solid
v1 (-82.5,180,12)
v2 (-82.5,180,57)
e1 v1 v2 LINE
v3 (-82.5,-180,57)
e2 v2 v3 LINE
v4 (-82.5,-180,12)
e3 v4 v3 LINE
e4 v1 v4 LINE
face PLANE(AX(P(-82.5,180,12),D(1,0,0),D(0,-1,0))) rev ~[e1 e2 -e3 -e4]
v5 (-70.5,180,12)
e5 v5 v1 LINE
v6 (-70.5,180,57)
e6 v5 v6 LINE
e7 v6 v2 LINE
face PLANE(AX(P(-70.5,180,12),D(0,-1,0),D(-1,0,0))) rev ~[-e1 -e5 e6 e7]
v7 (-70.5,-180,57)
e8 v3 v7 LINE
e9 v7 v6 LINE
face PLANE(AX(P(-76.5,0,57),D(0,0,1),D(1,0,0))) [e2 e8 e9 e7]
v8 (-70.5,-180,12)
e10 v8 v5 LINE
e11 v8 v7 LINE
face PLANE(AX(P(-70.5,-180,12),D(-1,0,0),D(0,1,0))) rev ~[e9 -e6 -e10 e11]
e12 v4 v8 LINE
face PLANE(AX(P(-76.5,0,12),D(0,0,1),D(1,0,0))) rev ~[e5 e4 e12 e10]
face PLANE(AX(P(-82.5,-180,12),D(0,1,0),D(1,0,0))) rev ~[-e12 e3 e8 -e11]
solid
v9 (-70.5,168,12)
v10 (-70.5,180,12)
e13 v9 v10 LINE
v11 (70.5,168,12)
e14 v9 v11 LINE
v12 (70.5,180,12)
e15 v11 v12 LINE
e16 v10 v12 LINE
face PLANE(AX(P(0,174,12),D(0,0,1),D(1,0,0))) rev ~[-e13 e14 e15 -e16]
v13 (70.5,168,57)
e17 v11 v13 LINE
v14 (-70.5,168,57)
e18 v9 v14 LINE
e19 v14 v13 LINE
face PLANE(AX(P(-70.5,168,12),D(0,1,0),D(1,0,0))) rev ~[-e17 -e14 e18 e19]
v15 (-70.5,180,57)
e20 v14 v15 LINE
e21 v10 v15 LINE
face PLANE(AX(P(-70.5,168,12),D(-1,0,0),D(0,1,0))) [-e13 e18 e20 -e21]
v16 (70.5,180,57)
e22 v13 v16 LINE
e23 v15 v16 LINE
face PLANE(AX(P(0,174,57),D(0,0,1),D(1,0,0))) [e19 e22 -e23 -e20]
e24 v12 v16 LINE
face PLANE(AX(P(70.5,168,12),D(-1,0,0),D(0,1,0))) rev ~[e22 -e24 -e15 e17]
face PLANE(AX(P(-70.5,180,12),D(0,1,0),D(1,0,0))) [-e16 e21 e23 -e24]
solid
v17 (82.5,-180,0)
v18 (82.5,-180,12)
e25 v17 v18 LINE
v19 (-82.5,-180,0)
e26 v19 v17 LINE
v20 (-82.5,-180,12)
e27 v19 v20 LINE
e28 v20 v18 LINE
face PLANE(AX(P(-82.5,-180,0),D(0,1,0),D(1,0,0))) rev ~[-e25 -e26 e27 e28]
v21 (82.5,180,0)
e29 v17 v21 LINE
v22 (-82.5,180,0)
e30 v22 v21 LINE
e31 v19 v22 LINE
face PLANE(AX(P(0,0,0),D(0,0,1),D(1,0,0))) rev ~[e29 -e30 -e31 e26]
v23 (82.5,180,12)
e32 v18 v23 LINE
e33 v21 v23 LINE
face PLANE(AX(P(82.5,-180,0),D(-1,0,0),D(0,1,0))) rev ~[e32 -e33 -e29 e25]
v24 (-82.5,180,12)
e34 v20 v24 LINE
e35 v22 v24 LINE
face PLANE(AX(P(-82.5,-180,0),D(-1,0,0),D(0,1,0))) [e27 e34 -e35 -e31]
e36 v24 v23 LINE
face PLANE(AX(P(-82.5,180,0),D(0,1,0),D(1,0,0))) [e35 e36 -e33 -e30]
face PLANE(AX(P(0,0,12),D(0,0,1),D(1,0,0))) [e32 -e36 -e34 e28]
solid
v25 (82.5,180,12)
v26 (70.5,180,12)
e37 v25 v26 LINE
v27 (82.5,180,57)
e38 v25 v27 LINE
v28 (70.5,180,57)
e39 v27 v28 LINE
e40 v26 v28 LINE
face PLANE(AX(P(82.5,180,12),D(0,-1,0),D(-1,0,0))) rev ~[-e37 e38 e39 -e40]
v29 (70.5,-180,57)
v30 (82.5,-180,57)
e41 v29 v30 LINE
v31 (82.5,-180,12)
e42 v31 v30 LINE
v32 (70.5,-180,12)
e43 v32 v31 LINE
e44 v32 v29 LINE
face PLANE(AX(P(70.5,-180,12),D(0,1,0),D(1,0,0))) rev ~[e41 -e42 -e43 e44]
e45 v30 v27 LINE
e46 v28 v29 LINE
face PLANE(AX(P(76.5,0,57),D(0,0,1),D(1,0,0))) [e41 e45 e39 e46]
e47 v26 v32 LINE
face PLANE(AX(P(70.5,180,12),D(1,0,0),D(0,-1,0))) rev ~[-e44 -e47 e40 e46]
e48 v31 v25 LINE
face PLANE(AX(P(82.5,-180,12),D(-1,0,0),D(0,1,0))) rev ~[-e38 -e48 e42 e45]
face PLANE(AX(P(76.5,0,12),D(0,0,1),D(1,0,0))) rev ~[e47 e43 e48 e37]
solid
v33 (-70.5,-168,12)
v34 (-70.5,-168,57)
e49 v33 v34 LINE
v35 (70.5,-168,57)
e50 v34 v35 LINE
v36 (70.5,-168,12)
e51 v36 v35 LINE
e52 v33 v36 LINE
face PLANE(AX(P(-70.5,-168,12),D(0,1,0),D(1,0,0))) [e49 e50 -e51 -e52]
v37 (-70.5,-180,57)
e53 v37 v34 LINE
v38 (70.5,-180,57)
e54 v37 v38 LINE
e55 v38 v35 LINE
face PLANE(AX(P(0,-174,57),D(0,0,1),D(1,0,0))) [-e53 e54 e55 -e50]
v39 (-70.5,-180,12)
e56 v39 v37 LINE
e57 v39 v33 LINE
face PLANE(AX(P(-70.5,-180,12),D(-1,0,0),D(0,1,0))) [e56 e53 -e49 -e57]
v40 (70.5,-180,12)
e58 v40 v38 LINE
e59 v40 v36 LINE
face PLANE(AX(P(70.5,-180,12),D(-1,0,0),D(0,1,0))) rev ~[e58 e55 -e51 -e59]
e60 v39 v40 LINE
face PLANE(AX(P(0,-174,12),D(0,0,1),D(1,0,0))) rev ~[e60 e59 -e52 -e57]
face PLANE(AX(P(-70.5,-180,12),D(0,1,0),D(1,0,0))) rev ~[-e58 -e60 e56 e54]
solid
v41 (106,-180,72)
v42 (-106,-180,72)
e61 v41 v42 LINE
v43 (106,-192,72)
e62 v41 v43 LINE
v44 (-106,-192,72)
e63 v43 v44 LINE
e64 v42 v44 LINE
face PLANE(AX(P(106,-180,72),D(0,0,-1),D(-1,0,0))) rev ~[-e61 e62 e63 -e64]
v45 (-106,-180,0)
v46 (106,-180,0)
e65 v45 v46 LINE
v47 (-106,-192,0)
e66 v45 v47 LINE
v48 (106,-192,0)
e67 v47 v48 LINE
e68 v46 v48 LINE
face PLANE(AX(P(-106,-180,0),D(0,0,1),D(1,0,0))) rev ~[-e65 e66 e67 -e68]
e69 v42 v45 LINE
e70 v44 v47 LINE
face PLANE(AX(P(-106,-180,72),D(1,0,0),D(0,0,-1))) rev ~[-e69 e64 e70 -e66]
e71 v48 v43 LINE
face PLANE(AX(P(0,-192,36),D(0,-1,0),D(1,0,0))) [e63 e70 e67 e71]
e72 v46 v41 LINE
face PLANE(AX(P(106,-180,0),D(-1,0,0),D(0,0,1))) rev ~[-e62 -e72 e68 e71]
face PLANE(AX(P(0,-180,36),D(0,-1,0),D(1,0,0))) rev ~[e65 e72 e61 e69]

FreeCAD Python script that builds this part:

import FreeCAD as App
import Part
import Sketcher

V = App.Vector

doc = App.newDocument("Part")
body = doc.addObject("PartDesign::Body", "Body")

# Sketch on XY plane
sketch1 = body.newObject("Sketcher::SketchObject", "Sketch")
sketch1.AttachmentSupport = (doc.getObject("XY_Plane"), [""])
sketch1.MapMode = "FlatFace"
sketch1.addGeometry(Part.LineSegment(V(-82, 180, 0), V(-82, -180, 0)), False)
sketch1.addGeometry(Part.LineSegment(V(-82, -180, 0), V(82, -180, 0)), False)
sketch1.addGeometry(Part.LineSegment(V(82, -180, 0), V(82, 180, 0)), False)
sketch1.addGeometry(Part.LineSegment(V(82, 180, 0), V(-82, 180, 0)), False)
sketch1.addConstraint(Sketcher.Constraint("Coincident", 0, 2, 1, 1))
sketch1.addConstraint(Sketcher.Constraint("Coincident", 1, 2, 2, 1))
sketch1.addConstraint(Sketcher.Constraint("Coincident", 2, 2, 3, 1))
sketch1.addConstraint(Sketcher.Constraint("Coincident", 3, 2, 0, 1))
sketch1.addConstraint(Sketcher.Constraint("Vertical", 0))
sketch1.addConstraint(Sketcher.Constraint("Horizontal", 1))
sketch1.addConstraint(Sketcher.Constraint("Vertical", 2))
sketch1.addConstraint(Sketcher.Constraint("Horizontal", 3))
sketch1.addConstraint(Sketcher.Constraint("Symmetric", 0, 2, 2, 2, -1, 1))
sketch1.addConstraint(Sketcher.Constraint("DistanceX", 1, 1, 1, 2, 165.0))
sketch1.addConstraint(Sketcher.Constraint("DistanceY", 0, 2, 0, 1, 360.0))
pad1 = body.newObject("PartDesign::Pad", "Pad")
pad1.Profile = sketch1
pad1.Length = 12
body2 = doc.addObject("PartDesign::Body", "Body001")

# Sketch on XY plane
sketch2 = body2.newObject("Sketcher::SketchObject", "Sketch001")
sketch2.AttachmentSupport = (doc.getObject("XY_Plane001"), [""])
sketch2.MapMode = "FlatFace"
sketch2.AttachmentOffset = App.Placement(V(0, 0, 12), App.Rotation())
sketch2.addGeometry(Part.LineSegment(V(-70, 180, 0), V(-70, 168, 0)), False)
sketch2.addGeometry(Part.LineSegment(V(-70, 168, 0), V(70, 168, 0)), False)
sketch2.addGeometry(Part.LineSegment(V(70, 168, 0), V(70, 180, 0)), False)
sketch2.addGeometry(Part.LineSegment(V(70, 180, 0), V(-70, 180, 0)), False)
sketch2.addConstraint(Sketcher.Constraint("Coincident", 0, 2, 1, 1))
sketch2.addConstraint(Sketcher.Constraint("Coincident", 1, 2, 2, 1))
sketch2.addConstraint(Sketcher.Constraint("Coincident", 2, 2, 3, 1))
sketch2.addConstraint(Sketcher.Constraint("Coincident", 3, 2, 0, 1))
sketch2.addConstraint(Sketcher.Constraint("Vertical", 0))
sketch2.addConstraint(Sketcher.Constraint("Horizontal", 1))
sketch2.addConstraint(Sketcher.Constraint("Vertical", 2))
sketch2.addConstraint(Sketcher.Constraint("Horizontal", 3))
sketch2.addConstraint(Sketcher.Constraint("DistanceX", 1, 1, 1, 2, 141.0))
sketch2.addConstraint(Sketcher.Constraint("DistanceY", 0, 2, 0, 1, 12.0))
sketch2.addConstraint(Sketcher.Constraint("DistanceY", -1, 1, 0, 2, 168.0))
sketch2.addConstraint(Sketcher.Constraint("DistanceX", 0, 2, -1, 1, 70.5))
pad2 = body2.newObject("PartDesign::Pad", "Pad001")
pad2.Profile = sketch2
pad2.Length = 45
body3 = doc.addObject("PartDesign::Body", "Body002")

# Sketch on XY plane
sketch3 = body3.newObject("Sketcher::SketchObject", "Sketch002")
sketch3.AttachmentSupport = (doc.getObject("XY_Plane002"), [""])
sketch3.MapMode = "FlatFace"
sketch3.AttachmentOffset = App.Placement(V(0, 0, 12), App.Rotation())
sketch3.addGeometry(Part.LineSegment(V(-70, -168, 0), V(-70, -180, 0)), False)
sketch3.addGeometry(Part.LineSegment(V(-70, -180, 0), V(70, -180, 0)), False)
sketch3.addGeometry(Part.LineSegment(V(70, -180, 0), V(70, -168, 0)), False)
sketch3.addGeometry(Part.LineSegment(V(70, -168, 0), V(-70, -168, 0)), False)
sketch3.addConstraint(Sketcher.Constraint("Coincident", 0, 2, 1, 1))
sketch3.addConstraint(Sketcher.Constraint("Coincident", 1, 2, 2, 1))
sketch3.addConstraint(Sketcher.Constraint("Coincident", 2, 2, 3, 1))
sketch3.addConstraint(Sketcher.Constraint("Coincident", 3, 2, 0, 1))
sketch3.addConstraint(Sketcher.Constraint("Vertical", 0))
sketch3.addConstraint(Sketcher.Constraint("Horizontal", 1))
sketch3.addConstraint(Sketcher.Constraint("Vertical", 2))
sketch3.addConstraint(Sketcher.Constraint("Horizontal", 3))
sketch3.addConstraint(Sketcher.Constraint("DistanceX", 1, 1, 1, 2, 141.0))
sketch3.addConstraint(Sketcher.Constraint("DistanceY", 0, 2, 0, 1, 12.0))
sketch3.addConstraint(Sketcher.Constraint("DistanceY", 0, 2, -1, 1, 180.0))
sketch3.addConstraint(Sketcher.Constraint("DistanceX", 0, 2, -1, 1, 70.5))
pad3 = body3.newObject("PartDesign::Pad", "Pad002")
pad3.Profile = sketch3
pad3.Length = 45
body4 = doc.addObject("PartDesign::Body", "Body003")

# Sketch on XY plane
sketch4 = body4.newObject("Sketcher::SketchObject", "Sketch003")
sketch4.AttachmentSupport = (doc.getObject("XY_Plane003"), [""])
sketch4.MapMode = "FlatFace"
sketch4.AttachmentOffset = App.Placement(V(0, 0, 12), App.Rotation())
sketch4.addGeometry(Part.LineSegment(V(-82, 180, 0), V(-82, -180, 0)), False)
sketch4.addGeometry(Part.LineSegment(V(-82, -180, 0), V(-70, -180, 0)), False)
sketch4.addGeometry(Part.LineSegment(V(-70, -180, 0), V(-70, 180, 0)), False)
sketch4.addGeometry(Part.LineSegment(V(-70, 180, 0), V(-82, 180, 0)), False)
sketch4.addConstraint(Sketcher.Constraint("Coincident", 0, 2, 1, 1))
sketch4.addConstraint(Sketcher.Constraint("Coincident", 1, 2, 2, 1))
sketch4.addConstraint(Sketcher.Constraint("Coincident", 2, 2, 3, 1))
sketch4.addConstraint(Sketcher.Constraint("Coincident", 3, 2, 0, 1))
sketch4.addConstraint(Sketcher.Constraint("Vertical", 0))
sketch4.addConstraint(Sketcher.Constraint("Horizontal", 1))
sketch4.addConstraint(Sketcher.Constraint("Vertical", 2))
sketch4.addConstraint(Sketcher.Constraint("Horizontal", 3))
sketch4.addConstraint(Sketcher.Constraint("DistanceX", 1, 1, 1, 2, 12.0))
sketch4.addConstraint(Sketcher.Constraint("DistanceY", 0, 2, 0, 1, 360.0))
sketch4.addConstraint(Sketcher.Constraint("DistanceY", 0, 2, -1, 1, 180.0))
sketch4.addConstraint(Sketcher.Constraint("DistanceX", 0, 2, -1, 1, 82.5))
pad4 = body4.newObject("PartDesign::Pad", "Pad003")
pad4.Profile = sketch4
pad4.Length = 45
body5 = doc.addObject("PartDesign::Body", "Body004")

# Sketch on XY plane
sketch5 = body5.newObject("Sketcher::SketchObject", "Sketch004")
sketch5.AttachmentSupport = (doc.getObject("XY_Plane004"), [""])
sketch5.MapMode = "FlatFace"
sketch5.AttachmentOffset = App.Placement(V(0, 0, 12), App.Rotation())
sketch5.addGeometry(Part.LineSegment(V(70, -180, 0), V(82, -180, 0)), False)
sketch5.addGeometry(Part.LineSegment(V(82, -180, 0), V(82, 180, 0)), False)
sketch5.addGeometry(Part.LineSegment(V(82, 180, 0), V(70, 180, 0)), False)
sketch5.addGeometry(Part.LineSegment(V(70, 180, 0), V(70, -180, 0)), False)
sketch5.addConstraint(Sketcher.Constraint("Coincident", 0, 2, 1, 1))
sketch5.addConstraint(Sketcher.Constraint("Coincident", 1, 2, 2, 1))
sketch5.addConstraint(Sketcher.Constraint("Coincident", 2, 2, 3, 1))
sketch5.addConstraint(Sketcher.Constraint("Coincident", 3, 2, 0, 1))
sketch5.addConstraint(Sketcher.Constraint("Horizontal", 0))
sketch5.addConstraint(Sketcher.Constraint("Vertical", 1))
sketch5.addConstraint(Sketcher.Constraint("Horizontal", 2))
sketch5.addConstraint(Sketcher.Constraint("Vertical", 3))
sketch5.addConstraint(Sketcher.Constraint("DistanceX", 0, 1, 0, 2, 12.0))
sketch5.addConstraint(Sketcher.Constraint("DistanceY", 1, 1, 1, 2, 360.0))
sketch5.addConstraint(Sketcher.Constraint("DistanceY", 0, 2, -1, 1, 180.0))
sketch5.addConstraint(Sketcher.Constraint("DistanceX", -1, 1, 0, 2, 82.5))
pad5 = body5.newObject("PartDesign::Pad", "Pad004")
pad5.Profile = sketch5
pad5.Length = 45
body6 = doc.addObject("PartDesign::Body", "Body005")

# Sketch on XZ plane
sketch6 = body6.newObject("Sketcher::SketchObject", "Sketch005")
sketch6.AttachmentSupport = (doc.getObject("XZ_Plane005"), [""])
sketch6.MapMode = "FlatFace"
sketch6.AttachmentOffset = App.Placement(V(0, 0, 180), App.Rotation())
sketch6.addGeometry(Part.LineSegment(V(106, 0, 0), V(106, 72, 0)), False)
sketch6.addGeometry(Part.LineSegment(V(106, 72, 0), V(-106, 72, 0)), False)
sketch6.addGeometry(Part.LineSegment(V(-106, 72, 0), V(-106, 0, 0)), False)
sketch6.addGeometry(Part.LineSegment(V(-106, 0, 0), V(106, 0, 0)), False)
sketch6.addConstraint(Sketcher.Constraint("Coincident", 0, 2, 1, 1))
sketch6.addConstraint(Sketcher.Constraint("Coincident", 1, 2, 2, 1))
sketch6.addConstraint(Sketcher.Constraint("Coincident", 2, 2, 3, 1))
sketch6.addConstraint(Sketcher.Constraint("Coincident", 3, 2, 0, 1))
sketch6.addConstraint(Sketcher.Constraint("Vertical", 0))
sketch6.addConstraint(Sketcher.Constraint("Horizontal", 1))
sketch6.addConstraint(Sketcher.Constraint("Vertical", 2))
sketch6.addConstraint(Sketcher.Constraint("Horizontal", 3))
sketch6.addConstraint(Sketcher.Constraint("Symmetric", 2, 2, 3, 2, -1, 1))
sketch6.addConstraint(Sketcher.Constraint("DistanceX", 1, 2, 1, 1, 212.0))
sketch6.addConstraint(Sketcher.Constraint("DistanceY", 0, 1, 0, 2, 72.0))
pad6 = body6.newObject("PartDesign::Pad", "Pad005")
pad6.Profile = sketch6
pad6.Length = 12

doc.recompute()
